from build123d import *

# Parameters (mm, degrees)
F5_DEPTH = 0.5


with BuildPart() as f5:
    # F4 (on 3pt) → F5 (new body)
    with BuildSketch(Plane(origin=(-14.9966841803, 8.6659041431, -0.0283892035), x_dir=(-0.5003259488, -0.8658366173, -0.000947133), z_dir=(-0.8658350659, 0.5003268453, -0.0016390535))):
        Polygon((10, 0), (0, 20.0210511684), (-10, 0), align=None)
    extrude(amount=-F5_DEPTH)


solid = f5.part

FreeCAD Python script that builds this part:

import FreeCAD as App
import Part
import Sketcher
from FreeCAD import Vector


def add_polygon(sketch, points):
    """Adds a closed chain of lines whose ends are joined by coincident constraints."""
    first, n = sketch.GeometryCount, len(points)
    for a, b in zip(points, points[1:] + points[:1]):
        sketch.addGeometry(Part.LineSegment(App.Vector(*a, 0), App.Vector(*b, 0)), False)
    for i in range(n):
        sketch.addConstraint(Sketcher.Constraint("Coincident", first + i, 2, first + (i + 1) % n, 1))

doc = App.newDocument("Part")
body = doc.addObject("PartDesign::Body", "Body")

sketch1 = doc.addObject("Sketcher::SketchObject", "Sketch")
body.addObject(sketch1)
sketch1.Placement = App.Placement(Vector(-14.996684, 8.665904, -0.028389), App.Rotation(Vector(-0.500325949, -0.865836617, -0.000947133), Vector(-0.001893029, 0, 0.999998208), Vector(-0.865835066, 0.500326845, -0.001639054), "ZXY"))
add_polygon(sketch1, [(10, 0), (0, 20.021051), (-10, 0)])
sketch1.addConstraint(Sketcher.Constraint("Horizontal", 2))
sketch1.addConstraint(Sketcher.Constraint("Symmetric", 1, 2, 2, 2, -1, 1))
sketch1.addConstraint(Sketcher.Constraint("PointOnObject", 0, 2, -2))
sketch1.addConstraint(Sketcher.Constraint("DistanceX", 2, 1, 2, 2, 20.0))
sketch1.addConstraint(Sketcher.Constraint("Distance", 0, 22.37951))
pad1 = doc.addObject("PartDesign::Pad", "Pad")
body.addObject(pad1)
pad1.Profile = sketch1
pad1.Length = 0.5
pad1.Reversed = True

doc.recompute()
